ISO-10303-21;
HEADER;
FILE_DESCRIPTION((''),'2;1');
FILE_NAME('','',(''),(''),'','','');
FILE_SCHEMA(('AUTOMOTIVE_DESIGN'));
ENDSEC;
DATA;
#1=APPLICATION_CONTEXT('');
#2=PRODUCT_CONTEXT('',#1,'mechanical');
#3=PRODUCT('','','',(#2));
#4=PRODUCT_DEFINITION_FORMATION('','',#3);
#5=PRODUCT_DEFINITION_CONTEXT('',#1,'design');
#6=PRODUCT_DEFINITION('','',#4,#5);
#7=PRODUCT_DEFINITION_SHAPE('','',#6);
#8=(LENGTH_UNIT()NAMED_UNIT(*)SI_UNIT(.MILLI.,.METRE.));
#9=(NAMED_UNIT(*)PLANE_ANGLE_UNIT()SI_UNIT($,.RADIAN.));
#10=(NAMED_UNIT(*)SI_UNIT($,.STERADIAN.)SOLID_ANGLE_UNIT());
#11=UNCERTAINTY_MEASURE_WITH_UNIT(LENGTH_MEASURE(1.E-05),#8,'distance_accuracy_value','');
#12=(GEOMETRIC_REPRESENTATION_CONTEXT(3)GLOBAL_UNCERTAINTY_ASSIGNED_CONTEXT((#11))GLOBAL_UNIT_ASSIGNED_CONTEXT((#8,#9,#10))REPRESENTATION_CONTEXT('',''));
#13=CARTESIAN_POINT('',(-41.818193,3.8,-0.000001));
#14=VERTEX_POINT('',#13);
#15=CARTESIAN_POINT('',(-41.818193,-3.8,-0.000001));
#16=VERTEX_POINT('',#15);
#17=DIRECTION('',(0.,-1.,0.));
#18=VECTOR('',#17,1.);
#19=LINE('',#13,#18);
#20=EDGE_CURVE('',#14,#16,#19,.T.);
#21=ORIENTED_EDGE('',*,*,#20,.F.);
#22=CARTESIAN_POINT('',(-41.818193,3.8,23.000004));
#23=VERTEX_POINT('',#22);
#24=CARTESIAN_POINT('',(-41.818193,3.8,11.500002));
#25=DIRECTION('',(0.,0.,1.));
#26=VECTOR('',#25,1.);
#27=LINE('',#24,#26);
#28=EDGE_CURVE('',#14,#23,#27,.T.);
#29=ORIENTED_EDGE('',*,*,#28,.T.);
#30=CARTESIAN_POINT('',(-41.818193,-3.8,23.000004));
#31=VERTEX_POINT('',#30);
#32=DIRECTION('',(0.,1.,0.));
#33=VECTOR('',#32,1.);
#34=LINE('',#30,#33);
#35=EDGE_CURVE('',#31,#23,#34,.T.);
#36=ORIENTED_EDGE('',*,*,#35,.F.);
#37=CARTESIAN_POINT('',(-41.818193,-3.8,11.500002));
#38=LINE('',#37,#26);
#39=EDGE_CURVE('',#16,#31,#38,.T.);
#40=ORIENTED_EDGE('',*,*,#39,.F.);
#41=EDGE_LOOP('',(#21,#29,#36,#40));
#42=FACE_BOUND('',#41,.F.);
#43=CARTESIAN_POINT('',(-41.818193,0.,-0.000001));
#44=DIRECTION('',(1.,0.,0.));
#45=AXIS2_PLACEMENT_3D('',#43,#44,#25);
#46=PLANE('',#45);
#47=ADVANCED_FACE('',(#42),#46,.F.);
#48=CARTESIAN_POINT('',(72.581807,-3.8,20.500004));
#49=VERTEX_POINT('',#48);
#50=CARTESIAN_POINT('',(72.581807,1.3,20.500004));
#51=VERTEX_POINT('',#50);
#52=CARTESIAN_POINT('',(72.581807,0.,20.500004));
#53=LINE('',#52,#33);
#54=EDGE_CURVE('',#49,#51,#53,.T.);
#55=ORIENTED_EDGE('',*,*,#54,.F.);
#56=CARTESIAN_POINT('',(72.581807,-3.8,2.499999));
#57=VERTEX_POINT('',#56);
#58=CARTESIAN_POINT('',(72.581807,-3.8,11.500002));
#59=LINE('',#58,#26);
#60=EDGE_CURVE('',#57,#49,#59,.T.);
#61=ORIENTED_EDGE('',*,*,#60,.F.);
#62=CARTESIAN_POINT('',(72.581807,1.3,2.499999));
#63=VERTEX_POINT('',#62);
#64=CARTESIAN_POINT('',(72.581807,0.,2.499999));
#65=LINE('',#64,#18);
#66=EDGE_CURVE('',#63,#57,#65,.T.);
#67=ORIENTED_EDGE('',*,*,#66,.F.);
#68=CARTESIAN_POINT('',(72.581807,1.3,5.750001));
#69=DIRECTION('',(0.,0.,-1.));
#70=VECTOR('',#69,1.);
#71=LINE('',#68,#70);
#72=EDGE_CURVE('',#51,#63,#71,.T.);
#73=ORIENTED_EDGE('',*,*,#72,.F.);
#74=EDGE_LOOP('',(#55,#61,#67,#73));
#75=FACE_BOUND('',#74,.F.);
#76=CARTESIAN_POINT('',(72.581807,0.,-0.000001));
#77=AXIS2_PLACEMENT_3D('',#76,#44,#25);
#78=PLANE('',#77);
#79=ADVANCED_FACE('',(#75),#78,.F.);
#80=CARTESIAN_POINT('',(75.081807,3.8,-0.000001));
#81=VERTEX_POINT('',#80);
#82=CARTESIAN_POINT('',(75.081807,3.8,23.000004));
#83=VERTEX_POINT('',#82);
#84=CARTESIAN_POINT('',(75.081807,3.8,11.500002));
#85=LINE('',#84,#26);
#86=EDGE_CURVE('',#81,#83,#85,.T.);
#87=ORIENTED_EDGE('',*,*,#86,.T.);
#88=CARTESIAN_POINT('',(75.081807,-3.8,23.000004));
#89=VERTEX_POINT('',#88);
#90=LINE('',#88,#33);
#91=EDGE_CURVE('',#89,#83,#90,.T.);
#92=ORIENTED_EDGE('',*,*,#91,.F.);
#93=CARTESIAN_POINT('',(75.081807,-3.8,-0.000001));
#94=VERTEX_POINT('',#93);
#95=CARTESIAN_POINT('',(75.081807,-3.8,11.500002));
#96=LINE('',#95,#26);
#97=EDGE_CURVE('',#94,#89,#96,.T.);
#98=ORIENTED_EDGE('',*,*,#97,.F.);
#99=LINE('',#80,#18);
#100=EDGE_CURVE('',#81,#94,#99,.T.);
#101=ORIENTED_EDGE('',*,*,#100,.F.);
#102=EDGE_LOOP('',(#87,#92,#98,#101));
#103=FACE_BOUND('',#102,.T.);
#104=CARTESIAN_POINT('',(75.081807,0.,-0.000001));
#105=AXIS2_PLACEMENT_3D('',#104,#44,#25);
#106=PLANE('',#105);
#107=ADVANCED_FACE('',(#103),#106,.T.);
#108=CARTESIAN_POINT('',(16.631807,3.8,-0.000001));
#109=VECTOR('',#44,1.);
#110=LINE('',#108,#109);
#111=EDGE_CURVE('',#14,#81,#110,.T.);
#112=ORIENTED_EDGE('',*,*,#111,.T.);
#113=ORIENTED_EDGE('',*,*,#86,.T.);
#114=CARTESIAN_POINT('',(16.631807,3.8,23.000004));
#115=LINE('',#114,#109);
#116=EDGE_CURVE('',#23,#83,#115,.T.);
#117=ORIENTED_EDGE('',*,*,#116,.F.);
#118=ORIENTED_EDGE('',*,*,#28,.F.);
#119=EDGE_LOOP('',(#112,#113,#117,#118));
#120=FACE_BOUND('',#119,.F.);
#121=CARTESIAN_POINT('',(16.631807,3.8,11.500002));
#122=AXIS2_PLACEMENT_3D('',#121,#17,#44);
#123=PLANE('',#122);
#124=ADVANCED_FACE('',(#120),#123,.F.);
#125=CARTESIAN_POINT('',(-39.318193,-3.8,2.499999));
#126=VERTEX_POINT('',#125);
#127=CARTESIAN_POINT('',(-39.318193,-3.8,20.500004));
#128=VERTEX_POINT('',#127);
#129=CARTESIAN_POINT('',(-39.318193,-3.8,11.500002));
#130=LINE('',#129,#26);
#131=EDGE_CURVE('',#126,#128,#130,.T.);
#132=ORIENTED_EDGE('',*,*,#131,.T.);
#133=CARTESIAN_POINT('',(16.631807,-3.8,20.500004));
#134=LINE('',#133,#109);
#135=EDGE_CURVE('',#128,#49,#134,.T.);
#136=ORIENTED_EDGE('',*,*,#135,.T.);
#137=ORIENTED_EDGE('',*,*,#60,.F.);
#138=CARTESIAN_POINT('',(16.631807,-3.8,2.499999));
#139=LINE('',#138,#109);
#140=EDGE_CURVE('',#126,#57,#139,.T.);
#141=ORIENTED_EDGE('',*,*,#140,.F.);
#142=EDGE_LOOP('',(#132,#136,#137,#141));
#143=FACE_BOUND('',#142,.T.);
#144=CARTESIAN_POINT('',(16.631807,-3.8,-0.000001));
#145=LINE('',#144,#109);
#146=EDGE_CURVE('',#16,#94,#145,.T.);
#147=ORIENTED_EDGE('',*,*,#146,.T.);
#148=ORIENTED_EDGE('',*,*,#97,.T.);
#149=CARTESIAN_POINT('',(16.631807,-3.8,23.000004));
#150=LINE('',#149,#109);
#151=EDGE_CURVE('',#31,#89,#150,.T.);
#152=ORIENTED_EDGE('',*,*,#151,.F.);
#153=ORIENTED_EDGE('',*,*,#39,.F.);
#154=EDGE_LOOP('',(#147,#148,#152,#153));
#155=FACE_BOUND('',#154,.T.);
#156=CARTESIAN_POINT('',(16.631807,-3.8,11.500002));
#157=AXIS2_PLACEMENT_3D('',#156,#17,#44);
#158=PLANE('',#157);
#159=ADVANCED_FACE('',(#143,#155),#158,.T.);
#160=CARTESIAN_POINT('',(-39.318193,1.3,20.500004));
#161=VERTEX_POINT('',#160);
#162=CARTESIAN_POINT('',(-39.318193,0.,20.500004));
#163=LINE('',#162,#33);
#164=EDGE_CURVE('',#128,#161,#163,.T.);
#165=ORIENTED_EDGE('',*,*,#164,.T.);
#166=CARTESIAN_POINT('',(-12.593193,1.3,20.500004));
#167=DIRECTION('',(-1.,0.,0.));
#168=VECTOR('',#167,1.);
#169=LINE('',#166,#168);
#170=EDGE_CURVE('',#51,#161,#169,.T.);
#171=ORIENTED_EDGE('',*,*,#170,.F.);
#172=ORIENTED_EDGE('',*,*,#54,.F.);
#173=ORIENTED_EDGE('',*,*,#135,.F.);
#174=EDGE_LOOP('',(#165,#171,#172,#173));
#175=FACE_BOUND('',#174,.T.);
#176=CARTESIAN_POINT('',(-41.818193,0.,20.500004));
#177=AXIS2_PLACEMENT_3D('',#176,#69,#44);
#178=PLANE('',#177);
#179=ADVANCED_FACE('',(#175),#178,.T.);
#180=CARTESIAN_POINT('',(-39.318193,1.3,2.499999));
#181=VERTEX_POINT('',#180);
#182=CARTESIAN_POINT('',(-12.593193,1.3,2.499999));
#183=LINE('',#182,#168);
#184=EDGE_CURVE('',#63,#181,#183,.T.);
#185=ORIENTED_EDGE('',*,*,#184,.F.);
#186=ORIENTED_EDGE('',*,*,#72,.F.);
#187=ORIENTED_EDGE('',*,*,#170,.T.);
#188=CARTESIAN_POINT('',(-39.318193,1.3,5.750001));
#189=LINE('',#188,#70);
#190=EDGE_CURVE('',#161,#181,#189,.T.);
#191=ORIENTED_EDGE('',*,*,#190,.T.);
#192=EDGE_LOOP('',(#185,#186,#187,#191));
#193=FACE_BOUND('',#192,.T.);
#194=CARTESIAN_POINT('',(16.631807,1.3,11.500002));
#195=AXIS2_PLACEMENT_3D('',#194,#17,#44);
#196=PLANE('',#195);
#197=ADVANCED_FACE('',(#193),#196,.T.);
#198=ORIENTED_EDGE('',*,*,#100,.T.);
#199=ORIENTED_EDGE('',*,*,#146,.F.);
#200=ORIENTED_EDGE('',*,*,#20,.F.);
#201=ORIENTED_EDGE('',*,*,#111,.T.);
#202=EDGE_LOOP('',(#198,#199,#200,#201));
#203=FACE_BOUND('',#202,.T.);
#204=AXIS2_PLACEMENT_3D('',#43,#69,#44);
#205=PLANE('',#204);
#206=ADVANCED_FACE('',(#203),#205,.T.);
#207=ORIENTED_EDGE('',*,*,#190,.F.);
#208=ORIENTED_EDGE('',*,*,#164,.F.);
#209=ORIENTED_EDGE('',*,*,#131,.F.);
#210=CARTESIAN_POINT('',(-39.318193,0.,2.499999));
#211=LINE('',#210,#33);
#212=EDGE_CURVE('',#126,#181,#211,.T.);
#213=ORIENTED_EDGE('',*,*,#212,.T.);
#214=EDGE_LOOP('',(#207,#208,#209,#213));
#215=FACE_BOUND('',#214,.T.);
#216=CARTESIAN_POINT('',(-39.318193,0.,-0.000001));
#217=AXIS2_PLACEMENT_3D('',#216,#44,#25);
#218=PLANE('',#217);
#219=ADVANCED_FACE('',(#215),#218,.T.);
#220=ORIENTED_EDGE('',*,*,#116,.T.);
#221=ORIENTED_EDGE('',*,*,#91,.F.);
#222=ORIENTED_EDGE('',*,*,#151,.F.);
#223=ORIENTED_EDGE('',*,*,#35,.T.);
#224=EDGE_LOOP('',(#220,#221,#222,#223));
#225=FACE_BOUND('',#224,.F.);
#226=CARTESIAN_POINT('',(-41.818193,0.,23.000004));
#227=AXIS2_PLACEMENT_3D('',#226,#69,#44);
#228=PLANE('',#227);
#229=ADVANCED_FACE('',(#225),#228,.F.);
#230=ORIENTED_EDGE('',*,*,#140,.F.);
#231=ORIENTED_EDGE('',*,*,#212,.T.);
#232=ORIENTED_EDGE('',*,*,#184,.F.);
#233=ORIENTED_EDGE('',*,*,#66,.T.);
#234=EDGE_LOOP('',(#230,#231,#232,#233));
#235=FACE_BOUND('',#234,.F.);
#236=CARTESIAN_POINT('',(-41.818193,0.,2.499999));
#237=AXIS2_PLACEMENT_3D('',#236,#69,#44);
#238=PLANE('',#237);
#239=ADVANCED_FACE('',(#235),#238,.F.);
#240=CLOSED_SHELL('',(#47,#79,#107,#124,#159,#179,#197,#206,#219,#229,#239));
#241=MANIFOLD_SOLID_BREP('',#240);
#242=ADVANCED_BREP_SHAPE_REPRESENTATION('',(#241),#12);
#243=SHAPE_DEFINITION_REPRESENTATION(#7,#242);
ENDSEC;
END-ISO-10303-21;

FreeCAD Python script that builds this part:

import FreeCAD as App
import Part
import Sketcher
Q = App.Units.Quantity


def faces_at(feature, points):
    """Names of the faces that lie closest to the given points."""
    faces = feature.Shape.Faces
    near = lambda p: min(range(len(faces)), key=lambda i: faces[i].distToShape(Part.Vertex(*p))[0])
    return sorted({f"Face{near(p) + 1}" for p in points})

doc = App.newDocument("Part")
body = doc.addObject("PartDesign::Body", "Body")

# Sketch on XZ plane
sketch1 = doc.addObject("Sketcher::SketchObject", "Sketch")
body.addObject(sketch1)
sketch1.AttachmentSupport = (doc.XZ_Plane, [""])
sketch1.MapMode = "FlatFace"
sketch1.addGeometry([
    Part.LineSegment(App.Vector(-42, 23, 0), App.Vector(-42, 0, 0)),
    Part.LineSegment(App.Vector(-42, 0, 0), App.Vector(75, 0, 0)),
    Part.LineSegment(App.Vector(75, 0, 0), App.Vector(75, 23, 0)),
    Part.LineSegment(App.Vector(75, 23, 0), App.Vector(-42, 23, 0)),
], False)
sketch1.addConstraint([
    Sketcher.Constraint("Coincident", 0, 2, 1, 1),
    Sketcher.Constraint("Coincident", 1, 2, 2, 1),
    Sketcher.Constraint("Coincident", 2, 2, 3, 1),
    Sketcher.Constraint("Coincident", 3, 2, 0, 1),
    Sketcher.Constraint("Vertical", 0),
    Sketcher.Constraint("Horizontal", 1),
    Sketcher.Constraint("Vertical", 2),
    Sketcher.Constraint("Horizontal", 3),
    Sketcher.Constraint("PointOnObject", 0, 2, -1),
    Sketcher.Constraint("DistanceX", 1, 1, 1, 2, Q("116.9 mm")),
    Sketcher.Constraint("DistanceY", 0, 2, 0, 1, Q("23.000005 mm")),
    Sketcher.Constraint("DistanceX", 0, 2, -1, 1, Q("41.818193 mm")),
])
pad1 = doc.addObject("PartDesign::Pad", "Pad")
body.addObject(pad1)
pad1.Profile = sketch1
pad1.Length = 7.6
pad1.Midplane = True
doc.recompute()

thickness = doc.addObject("PartDesign::Thickness", "Thickness")
body.addObject(thickness)
thickness.Base = (pad1, faces_at(pad1, [(16.632, -3.8, 11.5)]))
thickness.Value = 2.5
thickness.Reversed = True
thickness.Join = "Arc"

doc.recompute()
